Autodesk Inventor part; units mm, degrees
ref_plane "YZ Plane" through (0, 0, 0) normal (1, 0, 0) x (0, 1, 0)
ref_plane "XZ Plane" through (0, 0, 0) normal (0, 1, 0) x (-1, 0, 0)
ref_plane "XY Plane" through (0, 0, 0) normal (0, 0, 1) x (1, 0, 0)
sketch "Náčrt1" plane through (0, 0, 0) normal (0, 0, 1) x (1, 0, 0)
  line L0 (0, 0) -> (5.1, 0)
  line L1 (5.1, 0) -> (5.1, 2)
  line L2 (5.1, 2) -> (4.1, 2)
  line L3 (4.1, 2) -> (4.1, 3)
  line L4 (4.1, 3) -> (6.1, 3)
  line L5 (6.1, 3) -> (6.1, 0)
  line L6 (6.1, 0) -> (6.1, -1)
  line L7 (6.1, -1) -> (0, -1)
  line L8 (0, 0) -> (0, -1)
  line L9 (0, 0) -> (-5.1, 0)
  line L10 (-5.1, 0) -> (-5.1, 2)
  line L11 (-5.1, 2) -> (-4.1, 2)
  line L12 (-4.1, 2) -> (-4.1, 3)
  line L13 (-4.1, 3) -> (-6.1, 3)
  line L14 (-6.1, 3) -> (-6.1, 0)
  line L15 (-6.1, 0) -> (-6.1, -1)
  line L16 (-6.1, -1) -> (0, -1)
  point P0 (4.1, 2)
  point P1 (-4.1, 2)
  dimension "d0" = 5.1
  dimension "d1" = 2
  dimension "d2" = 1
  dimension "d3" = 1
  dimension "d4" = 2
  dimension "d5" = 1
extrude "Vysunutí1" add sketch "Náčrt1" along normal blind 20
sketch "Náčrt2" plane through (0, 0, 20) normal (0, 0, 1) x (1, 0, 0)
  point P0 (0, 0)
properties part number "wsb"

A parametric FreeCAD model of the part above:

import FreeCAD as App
import Part
import Sketcher

V = App.Vector


def add_polygon(sketch, points):
    """Adds a closed chain of lines whose ends are joined by coincident constraints."""
    first, n = sketch.GeometryCount, len(points)
    for a, b in zip(points, points[1:] + points[:1]):
        sketch.addGeometry(Part.LineSegment(App.Vector(*a, 0), App.Vector(*b, 0)), False)
    for i in range(n):
        sketch.addConstraint(Sketcher.Constraint("Coincident", first + i, 2, first + (i + 1) % n, 1))

doc = App.newDocument("Part")
params = doc.addObject("Spreadsheet::Sheet", "Params")
for row, (alias, value) in enumerate([
    ("sketch1_width", "1 mm"),
    ("sketch1_width2", "2 mm"),
    ("pad1_length", "20 mm"),
], start=1):
    params.set(f"A{row}", alias)
    params.set(f"B{row}", "=" + value)
    params.setAlias(f"B{row}", alias)

body = doc.addObject("PartDesign::Body", "Body")

# Sketch on XY plane
sketch1 = body.newObject("Sketcher::SketchObject", "Sketch")
sketch1.AttachmentSupport = (doc.getObject("XY_Plane"), [""])
sketch1.MapMode = "FlatFace"
add_polygon(sketch1, [(5.1, 0), (-5.1, 0), (-5.1, 2), (-4.1, 2), (-4.1, 3), (-6.1, 3), (-6.1, -1), (6.1, -1), (6.1, 3), (4.1, 3), (4.1, 2), (5.1, 2)])  # lines 0-11
sketch1.addConstraint(Sketcher.Constraint("Horizontal", 0))
sketch1.addConstraint(Sketcher.Constraint("Vertical", 1))
sketch1.addConstraint(Sketcher.Constraint("Horizontal", 2))
sketch1.addConstraint(Sketcher.Constraint("Vertical", 3))
sketch1.addConstraint(Sketcher.Constraint("Horizontal", 4))
sketch1.addConstraint(Sketcher.Constraint("Vertical", 5))
sketch1.addConstraint(Sketcher.Constraint("Horizontal", 6))
sketch1.addConstraint(Sketcher.Constraint("Vertical", 7))
sketch1.addConstraint(Sketcher.Constraint("Horizontal", 8))
sketch1.addConstraint(Sketcher.Constraint("Vertical", 9))
sketch1.addConstraint(Sketcher.Constraint("Horizontal", 10))
sketch1.addConstraint(Sketcher.Constraint("Vertical", 11))
sketch1.addConstraint(Sketcher.Constraint("Symmetric", 0, 2, 11, 2, -1, 1))
sketch1.addConstraint(Sketcher.Constraint("Symmetric", 4, 2, 7, 2, -2))
sketch1.addConstraint(Sketcher.Constraint("Symmetric", 2, 2, 9, 2, -2))
sketch1.addConstraint(Sketcher.Constraint("Equal", 8, 1))
sketch1.addConstraint(Sketcher.Constraint("Equal", 10, 3))
sketch1.addConstraint(Sketcher.Constraint("DistanceX", 2, 1, 2, 2, 1.0))
sketch1.addConstraint(Sketcher.Constraint("DistanceX", 4, 2, 4, 1, 2.0))
sketch1.addConstraint(Sketcher.Constraint("DistanceY", 5, 2, -1, 1, 1.0))
sketch1.addConstraint(Sketcher.Constraint("DistanceX", 0, 2, -1, 1, 5.1))
sketch1.setExpression("Constraints[29]", "Params.sketch1_width")
sketch1.setExpression("Constraints[30]", "Params.sketch1_width2")
pad1 = body.newObject("PartDesign::Pad", "Pad")
pad1.Profile = sketch1
pad1.setExpression("Length", "Params.pad1_length")

doc.recompute()
